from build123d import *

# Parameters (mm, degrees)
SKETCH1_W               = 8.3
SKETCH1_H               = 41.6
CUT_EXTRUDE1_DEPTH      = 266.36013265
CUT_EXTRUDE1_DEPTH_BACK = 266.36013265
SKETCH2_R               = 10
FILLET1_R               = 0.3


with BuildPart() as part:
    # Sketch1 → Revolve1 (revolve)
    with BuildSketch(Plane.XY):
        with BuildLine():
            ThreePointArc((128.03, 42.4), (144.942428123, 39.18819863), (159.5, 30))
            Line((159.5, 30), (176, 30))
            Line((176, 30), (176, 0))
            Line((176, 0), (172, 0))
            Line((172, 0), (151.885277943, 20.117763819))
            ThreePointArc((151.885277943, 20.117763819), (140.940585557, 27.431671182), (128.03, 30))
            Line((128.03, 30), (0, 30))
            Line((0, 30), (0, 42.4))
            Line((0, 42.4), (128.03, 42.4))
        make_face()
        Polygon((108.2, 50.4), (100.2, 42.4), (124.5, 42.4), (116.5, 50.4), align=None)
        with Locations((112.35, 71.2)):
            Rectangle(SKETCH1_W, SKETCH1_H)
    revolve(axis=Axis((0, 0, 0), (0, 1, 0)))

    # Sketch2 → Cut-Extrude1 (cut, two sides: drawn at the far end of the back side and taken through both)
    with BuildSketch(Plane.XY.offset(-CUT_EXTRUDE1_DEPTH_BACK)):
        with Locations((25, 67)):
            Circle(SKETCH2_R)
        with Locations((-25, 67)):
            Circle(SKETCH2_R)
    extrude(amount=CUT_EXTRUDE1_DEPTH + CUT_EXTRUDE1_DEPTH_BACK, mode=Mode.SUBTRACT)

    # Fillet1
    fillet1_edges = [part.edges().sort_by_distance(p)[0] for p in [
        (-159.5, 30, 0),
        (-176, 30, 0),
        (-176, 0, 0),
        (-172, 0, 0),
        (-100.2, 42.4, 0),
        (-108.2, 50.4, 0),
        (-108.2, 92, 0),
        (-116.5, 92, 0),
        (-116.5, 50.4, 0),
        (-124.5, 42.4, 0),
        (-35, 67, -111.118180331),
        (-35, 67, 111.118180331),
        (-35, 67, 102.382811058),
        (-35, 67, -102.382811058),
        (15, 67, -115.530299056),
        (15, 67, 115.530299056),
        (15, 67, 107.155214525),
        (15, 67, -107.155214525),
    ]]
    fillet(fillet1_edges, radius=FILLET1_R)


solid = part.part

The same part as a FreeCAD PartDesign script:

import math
import FreeCAD as App
import Part
import Sketcher
Q = App.Units.Quantity


def edges_at(feature, points):
    """Names of the edges that pass closest to the given points."""
    edges = feature.Shape.Edges
    near = lambda p: min(range(len(edges)), key=lambda i: edges[i].distToShape(Part.Vertex(*p))[0])
    return sorted({f"Edge{near(p) + 1}" for p in points})

doc = App.newDocument("Part")
body = doc.addObject("PartDesign::Body", "Body")

# Sketch on XY plane
sketch1 = doc.addObject("Sketcher::SketchObject", "Sketch")
body.addObject(sketch1)
sketch1.AttachmentSupport = (doc.XY_Plane, [""])
sketch1.MapMode = "FlatFace"
sketch1.addGeometry(Part.ArcOfCircle(Part.Circle(App.Vector(128, -3.7, 0), App.Vector(0, 0, 1), 46.1), math.radians(47), math.radians(90)), False)
sketch1.addGeometry(Part.LineSegment(App.Vector(128, 42.4, 0), App.Vector(124.5, 42.4, 0)), False)
sketch1.addGeometry(Part.LineSegment(App.Vector(124.5, 42.4, 0), App.Vector(116.5, 50.4, 0)), False)
sketch1.addGeometry(Part.LineSegment(App.Vector(116.5, 50.4, 0), App.Vector(116.5, 92, 0)), False)
sketch1.addGeometry(Part.LineSegment(App.Vector(116.5, 92, 0), App.Vector(108.2, 92, 0)), False)
sketch1.addGeometry(Part.LineSegment(App.Vector(108.2, 92, 0), App.Vector(108.2, 50.4, 0)), False)
sketch1.addGeometry(Part.LineSegment(App.Vector(108.2, 50.4, 0), App.Vector(100.2, 42.4, 0)), False)
sketch1.addGeometry(Part.LineSegment(App.Vector(100.2, 42.4, 0), App.Vector(0, 42.4, 0)), False)
sketch1.addGeometry(Part.LineSegment(App.Vector(0, 42.4, 0), App.Vector(0, 30, 0)), False)
sketch1.addGeometry(Part.LineSegment(App.Vector(0, 30, 0), App.Vector(128, 30, 0)), False)
sketch1.addGeometry(Part.ArcOfCircle(Part.Circle(App.Vector(128, -3.7, 0), App.Vector(0, 0, 1), 33.7), math.radians(45), math.radians(90)), False)
sketch1.addGeometry(Part.LineSegment(App.Vector(151.9, 20.1, 0), App.Vector(172, 0, 0)), False)
sketch1.addGeometry(Part.LineSegment(App.Vector(172, 0, 0), App.Vector(176, 0, 0)), False)
sketch1.addGeometry(Part.LineSegment(App.Vector(176, 0, 0), App.Vector(176, 30, 0)), False)
sketch1.addGeometry(Part.LineSegment(App.Vector(176, 30, 0), App.Vector(159.5, 30, 0)), False)
sketch1.addConstraint(Sketcher.Constraint("Tangent", 0, 2, 1, 1))
sketch1.addConstraint(Sketcher.Constraint("Coincident", 1, 2, 2, 1))
sketch1.addConstraint(Sketcher.Constraint("Coincident", 2, 2, 3, 1))
sketch1.addConstraint(Sketcher.Constraint("Coincident", 3, 2, 4, 1))
sketch1.addConstraint(Sketcher.Constraint("Coincident", 4, 2, 5, 1))
sketch1.addConstraint(Sketcher.Constraint("Coincident", 5, 2, 6, 1))
sketch1.addConstraint(Sketcher.Constraint("Coincident", 6, 2, 7, 1))
sketch1.addConstraint(Sketcher.Constraint("Coincident", 7, 2, 8, 1))
sketch1.addConstraint(Sketcher.Constraint("Coincident", 8, 2, 9, 1))
sketch1.addConstraint(Sketcher.Constraint("Tangent", 9, 2, 10, 2))
sketch1.addConstraint(Sketcher.Constraint("Tangent", 10, 1, 11, 1))
sketch1.addConstraint(Sketcher.Constraint("Coincident", 11, 2, 12, 1))
sketch1.addConstraint(Sketcher.Constraint("Coincident", 12, 2, 13, 1))
sketch1.addConstraint(Sketcher.Constraint("Coincident", 13, 2, 14, 1))
sketch1.addConstraint(Sketcher.Constraint("Coincident", 14, 2, 0, 1))
sketch1.addConstraint(Sketcher.Constraint("Horizontal", 1))
sketch1.addConstraint(Sketcher.Constraint("Vertical", 3))
sketch1.addConstraint(Sketcher.Constraint("Horizontal", 4))
sketch1.addConstraint(Sketcher.Constraint("Vertical", 5))
sketch1.addConstraint(Sketcher.Constraint("Horizontal", 7))
sketch1.addConstraint(Sketcher.Constraint("Vertical", 8))
sketch1.addConstraint(Sketcher.Constraint("Horizontal", 9))
sketch1.addConstraint(Sketcher.Constraint("Horizontal", 12))
sketch1.addConstraint(Sketcher.Constraint("Vertical", 13))
sketch1.addConstraint(Sketcher.Constraint("Horizontal", 14))
sketch1.addConstraint(Sketcher.Constraint("Coincident", 10, 3, 0, 3))
sketch1.addConstraint(Sketcher.Constraint("PointOnObject", 7, 2, -2))
sketch1.addConstraint(Sketcher.Constraint("PointOnObject", 11, 2, -1))
sketch1.addConstraint(Sketcher.Constraint("Perpendicular", 2, 6))
sketch1.addConstraint(Sketcher.Constraint("Horizontal", 2, 2, 5, 2))
sketch1.addConstraint(Sketcher.Constraint("Horizontal", 1, 2, 6, 2))
sketch1.addConstraint(Sketcher.Constraint("Horizontal", 9, 2, 13, 2))
sketch1.addConstraint(Sketcher.Constraint("Equal", 2, 6))
sketch1.addConstraint(Sketcher.Constraint("DistanceX", 12, 1, 12, 2, Q("4 mm")))
sketch1.addConstraint(Sketcher.Constraint("DistanceY", 13, 1, 13, 2, Q("30 mm")))
sketch1.addConstraint(Sketcher.Constraint("DistanceX", 4, 2, 4, 1, Q("8.3 mm")))
sketch1.addConstraint(Sketcher.Constraint("DistanceX", 7, 2, 7, 1, Q("100.2 mm")))
sketch1.addConstraint(Sketcher.Constraint("DistanceX", 14, 2, 14, 1, Q("16.5 mm")))
sketch1.addConstraint(Sketcher.Constraint("DistanceY", 3, 1, 3, 2, Q("41.6 mm")))
sketch1.addConstraint(Sketcher.Constraint("DistanceY", 8, 2, 8, 1, Q("12.4 mm")))
sketch1.addConstraint(Sketcher.Constraint("DistanceY", -1, 1, 3, 2, Q("92 mm")))
sketch1.addConstraint(Sketcher.Constraint("DistanceX", -1, 1, 11, 2, Q("172 mm")))
sketch1.addConstraint(Sketcher.Constraint("DistanceX", 1, 2, 1, 1, Q("3.53 mm")))
revolution = doc.addObject("PartDesign::Revolution", "Revolution")
body.addObject(revolution)
revolution.Profile = sketch1
revolution.ReferenceAxis = (sketch1, ["V_Axis"])
revolution.Angle = 360

# Sketch on XY plane
sketch2 = doc.addObject("Sketcher::SketchObject", "Sketch001")
body.addObject(sketch2)
sketch2.AttachmentSupport = (doc.XY_Plane, [""])
sketch2.MapMode = "FlatFace"
sketch2.addGeometry(Part.Circle(App.Vector(25, 67, 0), App.Vector(0, 0, 1), 10), False)
sketch2.addGeometry(Part.Circle(App.Vector(-25, 67, 0), App.Vector(0, 0, 1), 10), False)
sketch2.addConstraint(Sketcher.Constraint("Equal", 0, 1))
sketch2.addConstraint(Sketcher.Constraint("Symmetric", 0, 3, 1, 3, -2))
sketch2.addConstraint(Sketcher.Constraint("Diameter", 0, Q("20 mm")))
sketch2.addConstraint(Sketcher.Constraint("DistanceX", -1, 1, 0, 3, Q("25 mm")))
sketch2.addConstraint(Sketcher.Constraint("DistanceY", -1, 1, 0, 3, Q("67 mm")))
pocket1 = doc.addObject("PartDesign::Pocket", "Pocket")
body.addObject(pocket1)
pocket1.Profile = sketch2
pocket1.Type = "ThroughAll"
pocket1.Midplane = True
doc.recompute()

fillet = doc.addObject("PartDesign::Fillet", "Fillet")
body.addObject(fillet)
fillet.Base = (pocket1, edges_at(pocket1, [
    (-159.5, 30, 0),
    (-176, 30, 0),
    (-176, 0, 0),
    (-172, 0, 0),
    (-100.2, 42.4, 0),
    (-108.2, 50.4, 0),
    (-108.2, 92, 0),
    (-116.5, 92, 0),
    (-116.5, 50.4, 0),
    (-124.5, 42.4, 0),
    (-35, 67, -111.118),
    (-35, 67, 111.118),
    (-35, 67, 102.383),
    (-35, 67, -102.383),
    (15, 67, -115.53),
    (15, 67, 115.53),
    (15, 67, 107.155),
    (15, 67, -107.155),
]))
fillet.Radius = 0.3

doc.recompute()
